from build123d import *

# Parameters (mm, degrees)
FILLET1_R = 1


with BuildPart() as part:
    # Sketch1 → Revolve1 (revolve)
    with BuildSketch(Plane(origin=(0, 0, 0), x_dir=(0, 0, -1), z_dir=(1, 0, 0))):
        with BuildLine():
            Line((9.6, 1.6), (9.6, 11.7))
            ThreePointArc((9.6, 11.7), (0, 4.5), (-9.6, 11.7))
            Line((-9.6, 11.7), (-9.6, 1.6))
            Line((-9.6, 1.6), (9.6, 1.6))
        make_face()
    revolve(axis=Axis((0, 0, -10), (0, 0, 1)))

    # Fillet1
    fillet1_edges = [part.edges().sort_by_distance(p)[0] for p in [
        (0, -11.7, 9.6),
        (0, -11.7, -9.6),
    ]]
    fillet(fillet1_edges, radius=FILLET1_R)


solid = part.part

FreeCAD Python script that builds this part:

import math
import FreeCAD as App
import Part
import Sketcher


def edges_at(feature, points):
    """Names of the edges that pass closest to the given points."""
    edges = feature.Shape.Edges
    near = lambda p: min(range(len(edges)), key=lambda i: edges[i].distToShape(Part.Vertex(*p))[0])
    return sorted({f"Edge{near(p) + 1}" for p in points})

doc = App.newDocument("Part")
body = doc.addObject("PartDesign::Body", "Body")

sketch1 = body.newObject("Sketcher::SketchObject", "Sketch")
sketch1.AttachmentSupport = (doc.getObject("YZ_Plane"), [""])
sketch1.MapMode = "FlatFace"
sketch1.addGeometry([
    Part.LineSegment(App.Vector(1.6, -9.6, 0), App.Vector(11.7, -9.6, 0)),
    Part.ArcOfCircle(Part.Circle(App.Vector(14.5, 0, 0), App.Vector(0, 0, 1), 10), math.radians(106.260205), math.radians(253.739795)),
    Part.LineSegment(App.Vector(11.7, 9.6, 0), App.Vector(1.6, 9.6, 0)),
    Part.LineSegment(App.Vector(1.6, 9.6, 0), App.Vector(1.6, -9.6, 0)),
], False)
sketch1.addConstraint([
    Sketcher.Constraint("Coincident", 0, 2, 1, 2),
    Sketcher.Constraint("Coincident", 1, 1, 2, 1),
    Sketcher.Constraint("Coincident", 2, 2, 3, 1),
    Sketcher.Constraint("Coincident", 3, 2, 0, 1),
    Sketcher.Constraint("Horizontal", 0),
    Sketcher.Constraint("Horizontal", 2),
    Sketcher.Constraint("Vertical", 3),
    Sketcher.Constraint("Symmetric", 0, 2, 1, 1, -1),
    Sketcher.Constraint("Radius", 1, 10.0),
    Sketcher.Constraint("DistanceX", 0, 1, 0, 2, 10.1),
    Sketcher.Constraint("DistanceY", 3, 2, 3, 1, 19.2),
    Sketcher.Constraint("DistanceX", -1, 1, 1, 3, 14.5),
])
revolution = body.newObject("PartDesign::Revolution", "Revolution")
revolution.Profile = sketch1
revolution.ReferenceAxis = (sketch1, ["V_Axis"])
revolution.Angle = 360
doc.recompute()

fillet = body.newObject("PartDesign::Fillet", "Fillet")
fillet.Base = (revolution, edges_at(revolution, [(0, -11.7, 9.6), (0, -11.7, -9.6)]))
fillet.Radius = 1

doc.recompute()
